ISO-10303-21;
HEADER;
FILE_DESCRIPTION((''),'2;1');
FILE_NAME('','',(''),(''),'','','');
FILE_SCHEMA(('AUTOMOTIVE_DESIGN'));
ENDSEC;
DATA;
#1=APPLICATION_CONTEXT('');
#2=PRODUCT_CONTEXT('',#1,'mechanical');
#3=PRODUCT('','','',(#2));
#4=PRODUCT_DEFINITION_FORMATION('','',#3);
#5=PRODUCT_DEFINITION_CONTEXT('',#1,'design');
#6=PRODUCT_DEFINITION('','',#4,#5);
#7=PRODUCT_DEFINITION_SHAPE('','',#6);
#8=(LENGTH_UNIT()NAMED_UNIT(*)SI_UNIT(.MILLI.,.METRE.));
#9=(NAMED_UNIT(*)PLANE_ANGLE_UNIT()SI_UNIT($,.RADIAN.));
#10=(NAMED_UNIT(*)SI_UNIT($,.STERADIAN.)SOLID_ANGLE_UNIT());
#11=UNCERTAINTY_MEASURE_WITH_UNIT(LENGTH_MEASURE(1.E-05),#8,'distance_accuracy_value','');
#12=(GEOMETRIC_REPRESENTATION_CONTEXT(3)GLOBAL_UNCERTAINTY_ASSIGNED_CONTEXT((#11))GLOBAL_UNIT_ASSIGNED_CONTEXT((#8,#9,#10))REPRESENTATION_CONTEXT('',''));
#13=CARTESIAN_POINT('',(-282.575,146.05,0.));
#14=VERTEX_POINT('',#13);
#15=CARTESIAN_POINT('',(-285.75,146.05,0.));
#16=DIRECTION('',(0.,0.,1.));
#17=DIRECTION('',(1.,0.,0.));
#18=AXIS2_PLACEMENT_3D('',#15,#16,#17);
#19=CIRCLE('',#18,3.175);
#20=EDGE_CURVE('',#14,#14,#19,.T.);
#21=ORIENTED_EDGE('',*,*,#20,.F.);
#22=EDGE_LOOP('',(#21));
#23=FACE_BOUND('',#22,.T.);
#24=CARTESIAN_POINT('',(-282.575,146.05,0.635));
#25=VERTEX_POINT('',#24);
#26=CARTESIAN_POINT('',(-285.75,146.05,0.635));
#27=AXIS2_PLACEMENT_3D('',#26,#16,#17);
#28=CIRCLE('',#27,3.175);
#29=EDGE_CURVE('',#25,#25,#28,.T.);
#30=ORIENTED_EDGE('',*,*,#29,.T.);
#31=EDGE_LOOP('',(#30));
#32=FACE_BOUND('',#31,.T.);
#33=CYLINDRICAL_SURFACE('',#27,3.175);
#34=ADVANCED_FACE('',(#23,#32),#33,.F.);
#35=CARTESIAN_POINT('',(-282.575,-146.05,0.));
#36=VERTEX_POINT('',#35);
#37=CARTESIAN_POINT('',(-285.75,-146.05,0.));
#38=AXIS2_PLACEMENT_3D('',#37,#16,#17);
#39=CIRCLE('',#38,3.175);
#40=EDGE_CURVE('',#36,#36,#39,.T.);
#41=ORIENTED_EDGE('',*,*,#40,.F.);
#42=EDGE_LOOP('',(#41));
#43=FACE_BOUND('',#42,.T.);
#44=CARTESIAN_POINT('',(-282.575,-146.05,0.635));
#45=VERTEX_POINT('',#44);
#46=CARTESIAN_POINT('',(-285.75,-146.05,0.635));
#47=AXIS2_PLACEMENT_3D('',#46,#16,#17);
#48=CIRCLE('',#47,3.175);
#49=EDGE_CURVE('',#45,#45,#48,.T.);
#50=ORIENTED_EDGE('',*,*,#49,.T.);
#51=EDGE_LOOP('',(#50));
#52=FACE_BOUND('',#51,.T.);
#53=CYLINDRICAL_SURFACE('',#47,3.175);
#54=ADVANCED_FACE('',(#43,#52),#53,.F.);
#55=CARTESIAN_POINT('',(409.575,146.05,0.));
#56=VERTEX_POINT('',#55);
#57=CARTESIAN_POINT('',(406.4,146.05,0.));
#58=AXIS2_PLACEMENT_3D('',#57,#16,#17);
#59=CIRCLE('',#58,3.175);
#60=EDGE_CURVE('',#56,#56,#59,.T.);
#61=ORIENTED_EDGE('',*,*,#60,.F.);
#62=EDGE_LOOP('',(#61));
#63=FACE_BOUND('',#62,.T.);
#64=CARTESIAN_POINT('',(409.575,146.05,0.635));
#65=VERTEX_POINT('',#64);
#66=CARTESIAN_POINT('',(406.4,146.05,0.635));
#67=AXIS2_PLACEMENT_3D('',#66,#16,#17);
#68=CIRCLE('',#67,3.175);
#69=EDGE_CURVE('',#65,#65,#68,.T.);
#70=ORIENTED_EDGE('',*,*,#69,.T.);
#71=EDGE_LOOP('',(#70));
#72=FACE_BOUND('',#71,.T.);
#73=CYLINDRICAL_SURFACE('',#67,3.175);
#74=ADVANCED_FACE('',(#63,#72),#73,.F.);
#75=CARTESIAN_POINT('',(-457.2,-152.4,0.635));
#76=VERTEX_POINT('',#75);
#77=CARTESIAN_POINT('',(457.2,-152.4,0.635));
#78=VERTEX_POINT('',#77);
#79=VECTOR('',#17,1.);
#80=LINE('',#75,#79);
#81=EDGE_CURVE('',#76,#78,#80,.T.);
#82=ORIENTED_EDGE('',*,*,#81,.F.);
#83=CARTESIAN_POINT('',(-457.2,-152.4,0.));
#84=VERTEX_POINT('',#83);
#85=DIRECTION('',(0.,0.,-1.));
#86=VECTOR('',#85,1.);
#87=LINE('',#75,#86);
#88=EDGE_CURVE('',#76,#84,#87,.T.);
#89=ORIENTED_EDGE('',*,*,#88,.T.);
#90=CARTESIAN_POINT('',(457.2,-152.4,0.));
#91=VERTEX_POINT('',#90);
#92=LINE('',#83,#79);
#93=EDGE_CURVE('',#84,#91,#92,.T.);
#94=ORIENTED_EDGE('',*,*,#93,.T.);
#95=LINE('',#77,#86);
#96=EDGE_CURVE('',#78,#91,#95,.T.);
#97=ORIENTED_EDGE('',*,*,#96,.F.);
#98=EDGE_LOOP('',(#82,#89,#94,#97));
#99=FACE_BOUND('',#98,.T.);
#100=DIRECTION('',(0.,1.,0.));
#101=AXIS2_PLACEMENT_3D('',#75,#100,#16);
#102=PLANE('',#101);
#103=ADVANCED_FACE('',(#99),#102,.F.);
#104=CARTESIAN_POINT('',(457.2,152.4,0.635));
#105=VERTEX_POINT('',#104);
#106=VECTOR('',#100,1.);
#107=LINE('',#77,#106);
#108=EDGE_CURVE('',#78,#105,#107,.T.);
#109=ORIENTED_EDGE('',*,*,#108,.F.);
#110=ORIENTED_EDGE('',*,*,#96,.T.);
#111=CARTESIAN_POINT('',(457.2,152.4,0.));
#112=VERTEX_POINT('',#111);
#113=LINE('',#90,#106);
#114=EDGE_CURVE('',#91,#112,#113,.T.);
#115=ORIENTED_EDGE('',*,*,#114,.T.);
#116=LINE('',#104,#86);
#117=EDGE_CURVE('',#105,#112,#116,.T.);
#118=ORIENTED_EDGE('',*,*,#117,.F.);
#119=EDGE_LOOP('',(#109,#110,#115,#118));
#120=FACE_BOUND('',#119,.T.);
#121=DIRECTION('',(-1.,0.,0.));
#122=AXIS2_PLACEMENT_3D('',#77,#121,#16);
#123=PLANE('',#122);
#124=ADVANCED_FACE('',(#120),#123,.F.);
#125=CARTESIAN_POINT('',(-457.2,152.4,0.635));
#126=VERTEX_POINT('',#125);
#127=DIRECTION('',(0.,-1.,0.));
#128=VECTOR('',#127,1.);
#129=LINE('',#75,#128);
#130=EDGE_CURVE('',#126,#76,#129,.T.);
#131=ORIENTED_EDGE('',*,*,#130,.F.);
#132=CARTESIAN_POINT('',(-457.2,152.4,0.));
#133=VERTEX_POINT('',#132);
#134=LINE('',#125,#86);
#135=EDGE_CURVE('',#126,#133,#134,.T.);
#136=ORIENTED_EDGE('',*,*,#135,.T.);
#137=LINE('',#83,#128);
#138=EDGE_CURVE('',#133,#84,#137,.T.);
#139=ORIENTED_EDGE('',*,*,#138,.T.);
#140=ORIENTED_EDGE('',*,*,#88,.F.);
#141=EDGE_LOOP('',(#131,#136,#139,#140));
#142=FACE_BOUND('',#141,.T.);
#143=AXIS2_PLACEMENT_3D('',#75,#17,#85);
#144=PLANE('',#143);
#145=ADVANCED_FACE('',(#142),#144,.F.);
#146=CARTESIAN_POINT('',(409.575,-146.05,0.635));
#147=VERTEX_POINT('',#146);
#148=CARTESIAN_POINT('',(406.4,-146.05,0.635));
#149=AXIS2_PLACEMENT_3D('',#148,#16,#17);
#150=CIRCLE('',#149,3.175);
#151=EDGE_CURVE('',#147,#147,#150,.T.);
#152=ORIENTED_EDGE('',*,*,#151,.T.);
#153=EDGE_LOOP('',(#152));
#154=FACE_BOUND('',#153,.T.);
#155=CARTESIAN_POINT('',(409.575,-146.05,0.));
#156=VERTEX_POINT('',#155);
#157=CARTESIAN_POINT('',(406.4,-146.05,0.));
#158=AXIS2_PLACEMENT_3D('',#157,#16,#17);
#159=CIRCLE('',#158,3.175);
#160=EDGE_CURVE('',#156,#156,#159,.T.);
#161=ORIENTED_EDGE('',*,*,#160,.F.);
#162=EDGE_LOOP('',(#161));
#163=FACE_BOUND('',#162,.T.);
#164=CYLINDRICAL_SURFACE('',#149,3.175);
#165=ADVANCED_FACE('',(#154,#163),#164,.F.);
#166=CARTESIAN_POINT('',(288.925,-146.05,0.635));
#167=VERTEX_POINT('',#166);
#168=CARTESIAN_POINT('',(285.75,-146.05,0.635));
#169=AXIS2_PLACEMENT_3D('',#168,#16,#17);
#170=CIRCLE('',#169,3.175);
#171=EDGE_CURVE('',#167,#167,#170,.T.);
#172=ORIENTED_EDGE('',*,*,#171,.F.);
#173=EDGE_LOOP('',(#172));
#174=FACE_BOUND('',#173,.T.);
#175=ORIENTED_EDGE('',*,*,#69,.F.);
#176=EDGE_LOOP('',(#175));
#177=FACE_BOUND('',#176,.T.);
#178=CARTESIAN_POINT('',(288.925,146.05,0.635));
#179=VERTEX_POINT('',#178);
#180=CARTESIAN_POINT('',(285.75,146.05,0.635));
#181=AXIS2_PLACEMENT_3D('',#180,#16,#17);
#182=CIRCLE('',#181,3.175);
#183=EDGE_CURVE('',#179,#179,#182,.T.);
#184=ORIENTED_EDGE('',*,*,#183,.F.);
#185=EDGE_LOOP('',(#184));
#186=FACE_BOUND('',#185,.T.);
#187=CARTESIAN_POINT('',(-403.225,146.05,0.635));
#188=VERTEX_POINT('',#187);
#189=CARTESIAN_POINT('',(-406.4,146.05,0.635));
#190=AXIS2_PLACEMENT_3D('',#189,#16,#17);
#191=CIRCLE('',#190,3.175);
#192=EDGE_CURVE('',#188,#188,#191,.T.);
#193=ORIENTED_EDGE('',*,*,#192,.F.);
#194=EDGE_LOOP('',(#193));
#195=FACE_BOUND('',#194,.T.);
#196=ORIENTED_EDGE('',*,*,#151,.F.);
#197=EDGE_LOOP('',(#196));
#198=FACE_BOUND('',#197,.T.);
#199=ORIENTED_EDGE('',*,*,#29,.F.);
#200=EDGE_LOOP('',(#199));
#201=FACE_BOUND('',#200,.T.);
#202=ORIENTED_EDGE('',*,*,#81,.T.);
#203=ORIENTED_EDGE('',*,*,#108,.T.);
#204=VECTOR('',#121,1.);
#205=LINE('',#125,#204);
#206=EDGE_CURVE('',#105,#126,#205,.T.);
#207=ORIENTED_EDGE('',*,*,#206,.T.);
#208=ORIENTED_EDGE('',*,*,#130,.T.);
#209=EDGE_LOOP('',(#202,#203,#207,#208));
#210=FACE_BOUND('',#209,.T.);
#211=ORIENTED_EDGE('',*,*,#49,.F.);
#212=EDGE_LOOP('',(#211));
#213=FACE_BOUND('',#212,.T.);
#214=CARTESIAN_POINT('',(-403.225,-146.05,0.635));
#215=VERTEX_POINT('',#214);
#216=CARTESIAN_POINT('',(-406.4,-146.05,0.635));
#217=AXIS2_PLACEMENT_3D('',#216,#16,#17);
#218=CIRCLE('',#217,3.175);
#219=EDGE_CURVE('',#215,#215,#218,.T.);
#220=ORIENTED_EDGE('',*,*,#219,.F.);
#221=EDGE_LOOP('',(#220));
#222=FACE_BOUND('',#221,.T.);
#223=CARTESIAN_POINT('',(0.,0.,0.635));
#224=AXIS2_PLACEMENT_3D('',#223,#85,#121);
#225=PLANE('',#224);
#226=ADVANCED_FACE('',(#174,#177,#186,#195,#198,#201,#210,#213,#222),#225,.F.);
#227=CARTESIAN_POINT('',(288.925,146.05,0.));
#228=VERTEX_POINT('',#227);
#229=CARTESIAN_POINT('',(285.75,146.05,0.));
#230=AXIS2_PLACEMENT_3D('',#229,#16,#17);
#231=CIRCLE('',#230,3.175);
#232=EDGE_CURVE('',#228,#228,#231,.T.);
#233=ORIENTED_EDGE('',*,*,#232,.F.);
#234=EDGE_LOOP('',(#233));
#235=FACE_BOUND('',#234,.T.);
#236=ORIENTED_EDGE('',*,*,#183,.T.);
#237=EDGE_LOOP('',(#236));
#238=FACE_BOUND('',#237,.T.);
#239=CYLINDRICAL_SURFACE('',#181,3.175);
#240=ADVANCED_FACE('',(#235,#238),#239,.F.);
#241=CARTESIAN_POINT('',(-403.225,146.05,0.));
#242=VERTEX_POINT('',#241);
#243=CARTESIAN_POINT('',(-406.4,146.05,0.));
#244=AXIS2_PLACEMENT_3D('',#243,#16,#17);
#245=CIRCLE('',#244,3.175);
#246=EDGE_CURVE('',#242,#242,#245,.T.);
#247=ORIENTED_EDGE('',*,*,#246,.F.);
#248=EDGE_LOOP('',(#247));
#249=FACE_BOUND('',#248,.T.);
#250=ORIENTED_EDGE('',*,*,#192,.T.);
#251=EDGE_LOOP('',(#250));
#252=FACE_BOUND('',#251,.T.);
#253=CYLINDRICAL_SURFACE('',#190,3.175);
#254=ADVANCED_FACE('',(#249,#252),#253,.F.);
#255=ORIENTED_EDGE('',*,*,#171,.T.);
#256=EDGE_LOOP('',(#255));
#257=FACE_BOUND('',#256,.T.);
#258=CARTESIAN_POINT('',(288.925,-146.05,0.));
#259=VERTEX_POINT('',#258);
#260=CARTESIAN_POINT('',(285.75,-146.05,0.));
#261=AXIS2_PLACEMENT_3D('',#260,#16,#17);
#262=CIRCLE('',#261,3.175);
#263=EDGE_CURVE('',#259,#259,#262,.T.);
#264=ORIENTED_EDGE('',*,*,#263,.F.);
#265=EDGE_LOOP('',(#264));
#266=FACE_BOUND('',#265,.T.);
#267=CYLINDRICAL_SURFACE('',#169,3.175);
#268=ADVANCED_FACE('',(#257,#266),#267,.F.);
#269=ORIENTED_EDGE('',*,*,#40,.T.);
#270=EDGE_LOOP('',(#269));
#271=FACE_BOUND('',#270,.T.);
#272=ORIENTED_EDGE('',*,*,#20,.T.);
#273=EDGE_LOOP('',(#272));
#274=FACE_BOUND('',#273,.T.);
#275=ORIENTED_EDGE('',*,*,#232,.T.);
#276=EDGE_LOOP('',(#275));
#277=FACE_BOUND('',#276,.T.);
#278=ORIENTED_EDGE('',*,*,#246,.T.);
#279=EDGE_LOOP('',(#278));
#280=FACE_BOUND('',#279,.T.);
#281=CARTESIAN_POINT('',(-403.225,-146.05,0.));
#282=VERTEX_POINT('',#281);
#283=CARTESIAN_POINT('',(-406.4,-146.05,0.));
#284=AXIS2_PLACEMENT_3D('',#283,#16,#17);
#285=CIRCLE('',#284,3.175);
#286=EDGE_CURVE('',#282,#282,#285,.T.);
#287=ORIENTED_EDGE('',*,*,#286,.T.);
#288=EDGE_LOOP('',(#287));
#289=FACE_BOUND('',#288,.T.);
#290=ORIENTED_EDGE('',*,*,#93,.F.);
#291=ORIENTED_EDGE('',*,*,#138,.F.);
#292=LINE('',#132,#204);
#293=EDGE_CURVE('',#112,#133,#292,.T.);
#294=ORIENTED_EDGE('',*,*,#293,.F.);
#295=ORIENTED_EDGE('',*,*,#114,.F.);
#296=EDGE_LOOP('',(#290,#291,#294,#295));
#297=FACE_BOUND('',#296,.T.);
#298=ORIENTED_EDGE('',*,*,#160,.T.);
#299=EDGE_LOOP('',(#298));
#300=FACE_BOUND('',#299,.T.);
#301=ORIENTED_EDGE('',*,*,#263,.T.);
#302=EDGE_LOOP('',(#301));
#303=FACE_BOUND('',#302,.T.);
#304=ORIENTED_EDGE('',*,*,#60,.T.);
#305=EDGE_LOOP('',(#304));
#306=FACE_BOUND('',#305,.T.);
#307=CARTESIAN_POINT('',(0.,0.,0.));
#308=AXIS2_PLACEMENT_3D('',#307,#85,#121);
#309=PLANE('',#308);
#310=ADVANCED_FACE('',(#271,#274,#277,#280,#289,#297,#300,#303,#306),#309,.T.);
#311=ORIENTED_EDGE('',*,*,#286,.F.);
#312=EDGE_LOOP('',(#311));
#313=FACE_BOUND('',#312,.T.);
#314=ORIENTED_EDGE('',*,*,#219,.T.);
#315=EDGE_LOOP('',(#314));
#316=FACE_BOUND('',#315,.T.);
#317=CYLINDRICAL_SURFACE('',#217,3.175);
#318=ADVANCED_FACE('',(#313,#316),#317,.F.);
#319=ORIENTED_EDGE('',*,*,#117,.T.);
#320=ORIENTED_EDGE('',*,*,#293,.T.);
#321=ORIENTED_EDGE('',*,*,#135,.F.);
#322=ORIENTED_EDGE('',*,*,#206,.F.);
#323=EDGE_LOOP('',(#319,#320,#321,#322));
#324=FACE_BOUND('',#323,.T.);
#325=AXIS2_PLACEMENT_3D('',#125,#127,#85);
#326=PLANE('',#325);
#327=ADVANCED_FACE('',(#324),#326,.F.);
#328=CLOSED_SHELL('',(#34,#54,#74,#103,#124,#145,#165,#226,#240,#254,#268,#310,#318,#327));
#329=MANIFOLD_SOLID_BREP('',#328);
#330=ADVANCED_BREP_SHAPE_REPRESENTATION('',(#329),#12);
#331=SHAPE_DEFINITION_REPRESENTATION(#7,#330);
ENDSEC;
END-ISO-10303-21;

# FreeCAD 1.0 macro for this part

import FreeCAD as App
import Part
import Sketcher
Q = App.Units.Quantity


def add_polygon(sketch, points):
    """Adds a closed chain of lines whose ends are joined by coincident constraints."""
    first, n = sketch.GeometryCount, len(points)
    for a, b in zip(points, points[1:] + points[:1]):
        sketch.addGeometry(Part.LineSegment(App.Vector(*a, 0), App.Vector(*b, 0)), False)
    for i in range(n):
        sketch.addConstraint(Sketcher.Constraint("Coincident", first + i, 2, first + (i + 1) % n, 1))

doc = App.newDocument("Part")
body = doc.addObject("PartDesign::Body", "Body")

# Sketch on XY plane
sketch1 = doc.addObject("Sketcher::SketchObject", "Sketch")
body.addObject(sketch1)
sketch1.AttachmentSupport = (doc.XY_Plane, [""])
sketch1.MapMode = "FlatFace"
add_polygon(sketch1, [(-457.2, 152.4), (-457.2, -152.4), (457.2, -152.4), (457.2, 152.4)])  # lines 0-3
sketch1.addConstraint(Sketcher.Constraint("Vertical", 0))
sketch1.addConstraint(Sketcher.Constraint("Horizontal", 1))
sketch1.addConstraint(Sketcher.Constraint("Vertical", 2))
sketch1.addConstraint(Sketcher.Constraint("Horizontal", 3))
sketch1.addConstraint(Sketcher.Constraint("Symmetric", 0, 2, 2, 2, -1, 1))
sketch1.addConstraint(Sketcher.Constraint("DistanceX", 1, 1, 1, 2, Q("36 in")))
sketch1.addConstraint(Sketcher.Constraint("DistanceY", 0, 2, 0, 1, Q("12 in")))
pad1 = doc.addObject("PartDesign::Pad", "Pad")
body.addObject(pad1)
pad1.Profile = sketch1
pad1.Length = Q("0.025 in")

# Sketch on XY plane
sketch2 = doc.addObject("Sketcher::SketchObject", "Sketch001")
body.addObject(sketch2)
sketch2.AttachmentSupport = (doc.XY_Plane, [""])
sketch2.MapMode = "FlatFace"
sketch2.AttachmentOffset = App.Placement(App.Vector(0, 0, 0.025 * 25.4), App.Rotation())
sketch2.addGeometry(Part.Circle(App.Vector(285.75, 146.05, 0), App.Vector(0, 0, 1), 3.175), False)
sketch2.addGeometry(Part.Circle(App.Vector(406.4, 146.05, 0), App.Vector(0, 0, 1), 3.175), False)
sketch2.addGeometry(Part.Circle(App.Vector(406.4, -146.05, 0), App.Vector(0, 0, 1), 3.175), False)
sketch2.addGeometry(Part.Circle(App.Vector(285.75, -146.05, 0), App.Vector(0, 0, 1), 3.175), False)
sketch2.addConstraint(Sketcher.Constraint("Equal", 0, 1))
sketch2.addConstraint(Sketcher.Constraint("Equal", 1, 2))
sketch2.addConstraint(Sketcher.Constraint("Equal", 2, 3))
sketch2.addConstraint(Sketcher.Constraint("Symmetric", 1, 3, 2, 3, -1))
sketch2.addConstraint(Sketcher.Constraint("Symmetric", 0, 3, 3, 3, -1))
sketch2.addConstraint(Sketcher.Constraint("Horizontal", 0, 3, 1, 3))
sketch2.addConstraint(Sketcher.Constraint("Diameter", 0, Q("0.25 in")))
sketch2.addConstraint(Sketcher.Constraint("DistanceX", -1, 1, 1, 3, Q("16 in")))
sketch2.addConstraint(Sketcher.Constraint("DistanceY", 2, 3, 1, 3, Q("11.5 in")))
sketch2.addConstraint(Sketcher.Constraint("DistanceX", -1, 1, 0, 3, Q("11.25 in")))
doc.recompute()
hole = doc.addObject("PartDesign::Hole", "Hole")
body.addObject(hole)
hole.Profile = sketch2
hole.ThreadType = "None"
hole.Diameter = Q("0.25 in")
hole.DepthType = "ThroughAll"
doc.recompute()

mirrored = doc.addObject("PartDesign::Mirrored", "Mirrored")
body.addObject(mirrored)
mirrored.Originals = [hole]
mirrored.MirrorPlane = (doc.YZ_Plane, [""])
body.Tip = mirrored

doc.recompute()
